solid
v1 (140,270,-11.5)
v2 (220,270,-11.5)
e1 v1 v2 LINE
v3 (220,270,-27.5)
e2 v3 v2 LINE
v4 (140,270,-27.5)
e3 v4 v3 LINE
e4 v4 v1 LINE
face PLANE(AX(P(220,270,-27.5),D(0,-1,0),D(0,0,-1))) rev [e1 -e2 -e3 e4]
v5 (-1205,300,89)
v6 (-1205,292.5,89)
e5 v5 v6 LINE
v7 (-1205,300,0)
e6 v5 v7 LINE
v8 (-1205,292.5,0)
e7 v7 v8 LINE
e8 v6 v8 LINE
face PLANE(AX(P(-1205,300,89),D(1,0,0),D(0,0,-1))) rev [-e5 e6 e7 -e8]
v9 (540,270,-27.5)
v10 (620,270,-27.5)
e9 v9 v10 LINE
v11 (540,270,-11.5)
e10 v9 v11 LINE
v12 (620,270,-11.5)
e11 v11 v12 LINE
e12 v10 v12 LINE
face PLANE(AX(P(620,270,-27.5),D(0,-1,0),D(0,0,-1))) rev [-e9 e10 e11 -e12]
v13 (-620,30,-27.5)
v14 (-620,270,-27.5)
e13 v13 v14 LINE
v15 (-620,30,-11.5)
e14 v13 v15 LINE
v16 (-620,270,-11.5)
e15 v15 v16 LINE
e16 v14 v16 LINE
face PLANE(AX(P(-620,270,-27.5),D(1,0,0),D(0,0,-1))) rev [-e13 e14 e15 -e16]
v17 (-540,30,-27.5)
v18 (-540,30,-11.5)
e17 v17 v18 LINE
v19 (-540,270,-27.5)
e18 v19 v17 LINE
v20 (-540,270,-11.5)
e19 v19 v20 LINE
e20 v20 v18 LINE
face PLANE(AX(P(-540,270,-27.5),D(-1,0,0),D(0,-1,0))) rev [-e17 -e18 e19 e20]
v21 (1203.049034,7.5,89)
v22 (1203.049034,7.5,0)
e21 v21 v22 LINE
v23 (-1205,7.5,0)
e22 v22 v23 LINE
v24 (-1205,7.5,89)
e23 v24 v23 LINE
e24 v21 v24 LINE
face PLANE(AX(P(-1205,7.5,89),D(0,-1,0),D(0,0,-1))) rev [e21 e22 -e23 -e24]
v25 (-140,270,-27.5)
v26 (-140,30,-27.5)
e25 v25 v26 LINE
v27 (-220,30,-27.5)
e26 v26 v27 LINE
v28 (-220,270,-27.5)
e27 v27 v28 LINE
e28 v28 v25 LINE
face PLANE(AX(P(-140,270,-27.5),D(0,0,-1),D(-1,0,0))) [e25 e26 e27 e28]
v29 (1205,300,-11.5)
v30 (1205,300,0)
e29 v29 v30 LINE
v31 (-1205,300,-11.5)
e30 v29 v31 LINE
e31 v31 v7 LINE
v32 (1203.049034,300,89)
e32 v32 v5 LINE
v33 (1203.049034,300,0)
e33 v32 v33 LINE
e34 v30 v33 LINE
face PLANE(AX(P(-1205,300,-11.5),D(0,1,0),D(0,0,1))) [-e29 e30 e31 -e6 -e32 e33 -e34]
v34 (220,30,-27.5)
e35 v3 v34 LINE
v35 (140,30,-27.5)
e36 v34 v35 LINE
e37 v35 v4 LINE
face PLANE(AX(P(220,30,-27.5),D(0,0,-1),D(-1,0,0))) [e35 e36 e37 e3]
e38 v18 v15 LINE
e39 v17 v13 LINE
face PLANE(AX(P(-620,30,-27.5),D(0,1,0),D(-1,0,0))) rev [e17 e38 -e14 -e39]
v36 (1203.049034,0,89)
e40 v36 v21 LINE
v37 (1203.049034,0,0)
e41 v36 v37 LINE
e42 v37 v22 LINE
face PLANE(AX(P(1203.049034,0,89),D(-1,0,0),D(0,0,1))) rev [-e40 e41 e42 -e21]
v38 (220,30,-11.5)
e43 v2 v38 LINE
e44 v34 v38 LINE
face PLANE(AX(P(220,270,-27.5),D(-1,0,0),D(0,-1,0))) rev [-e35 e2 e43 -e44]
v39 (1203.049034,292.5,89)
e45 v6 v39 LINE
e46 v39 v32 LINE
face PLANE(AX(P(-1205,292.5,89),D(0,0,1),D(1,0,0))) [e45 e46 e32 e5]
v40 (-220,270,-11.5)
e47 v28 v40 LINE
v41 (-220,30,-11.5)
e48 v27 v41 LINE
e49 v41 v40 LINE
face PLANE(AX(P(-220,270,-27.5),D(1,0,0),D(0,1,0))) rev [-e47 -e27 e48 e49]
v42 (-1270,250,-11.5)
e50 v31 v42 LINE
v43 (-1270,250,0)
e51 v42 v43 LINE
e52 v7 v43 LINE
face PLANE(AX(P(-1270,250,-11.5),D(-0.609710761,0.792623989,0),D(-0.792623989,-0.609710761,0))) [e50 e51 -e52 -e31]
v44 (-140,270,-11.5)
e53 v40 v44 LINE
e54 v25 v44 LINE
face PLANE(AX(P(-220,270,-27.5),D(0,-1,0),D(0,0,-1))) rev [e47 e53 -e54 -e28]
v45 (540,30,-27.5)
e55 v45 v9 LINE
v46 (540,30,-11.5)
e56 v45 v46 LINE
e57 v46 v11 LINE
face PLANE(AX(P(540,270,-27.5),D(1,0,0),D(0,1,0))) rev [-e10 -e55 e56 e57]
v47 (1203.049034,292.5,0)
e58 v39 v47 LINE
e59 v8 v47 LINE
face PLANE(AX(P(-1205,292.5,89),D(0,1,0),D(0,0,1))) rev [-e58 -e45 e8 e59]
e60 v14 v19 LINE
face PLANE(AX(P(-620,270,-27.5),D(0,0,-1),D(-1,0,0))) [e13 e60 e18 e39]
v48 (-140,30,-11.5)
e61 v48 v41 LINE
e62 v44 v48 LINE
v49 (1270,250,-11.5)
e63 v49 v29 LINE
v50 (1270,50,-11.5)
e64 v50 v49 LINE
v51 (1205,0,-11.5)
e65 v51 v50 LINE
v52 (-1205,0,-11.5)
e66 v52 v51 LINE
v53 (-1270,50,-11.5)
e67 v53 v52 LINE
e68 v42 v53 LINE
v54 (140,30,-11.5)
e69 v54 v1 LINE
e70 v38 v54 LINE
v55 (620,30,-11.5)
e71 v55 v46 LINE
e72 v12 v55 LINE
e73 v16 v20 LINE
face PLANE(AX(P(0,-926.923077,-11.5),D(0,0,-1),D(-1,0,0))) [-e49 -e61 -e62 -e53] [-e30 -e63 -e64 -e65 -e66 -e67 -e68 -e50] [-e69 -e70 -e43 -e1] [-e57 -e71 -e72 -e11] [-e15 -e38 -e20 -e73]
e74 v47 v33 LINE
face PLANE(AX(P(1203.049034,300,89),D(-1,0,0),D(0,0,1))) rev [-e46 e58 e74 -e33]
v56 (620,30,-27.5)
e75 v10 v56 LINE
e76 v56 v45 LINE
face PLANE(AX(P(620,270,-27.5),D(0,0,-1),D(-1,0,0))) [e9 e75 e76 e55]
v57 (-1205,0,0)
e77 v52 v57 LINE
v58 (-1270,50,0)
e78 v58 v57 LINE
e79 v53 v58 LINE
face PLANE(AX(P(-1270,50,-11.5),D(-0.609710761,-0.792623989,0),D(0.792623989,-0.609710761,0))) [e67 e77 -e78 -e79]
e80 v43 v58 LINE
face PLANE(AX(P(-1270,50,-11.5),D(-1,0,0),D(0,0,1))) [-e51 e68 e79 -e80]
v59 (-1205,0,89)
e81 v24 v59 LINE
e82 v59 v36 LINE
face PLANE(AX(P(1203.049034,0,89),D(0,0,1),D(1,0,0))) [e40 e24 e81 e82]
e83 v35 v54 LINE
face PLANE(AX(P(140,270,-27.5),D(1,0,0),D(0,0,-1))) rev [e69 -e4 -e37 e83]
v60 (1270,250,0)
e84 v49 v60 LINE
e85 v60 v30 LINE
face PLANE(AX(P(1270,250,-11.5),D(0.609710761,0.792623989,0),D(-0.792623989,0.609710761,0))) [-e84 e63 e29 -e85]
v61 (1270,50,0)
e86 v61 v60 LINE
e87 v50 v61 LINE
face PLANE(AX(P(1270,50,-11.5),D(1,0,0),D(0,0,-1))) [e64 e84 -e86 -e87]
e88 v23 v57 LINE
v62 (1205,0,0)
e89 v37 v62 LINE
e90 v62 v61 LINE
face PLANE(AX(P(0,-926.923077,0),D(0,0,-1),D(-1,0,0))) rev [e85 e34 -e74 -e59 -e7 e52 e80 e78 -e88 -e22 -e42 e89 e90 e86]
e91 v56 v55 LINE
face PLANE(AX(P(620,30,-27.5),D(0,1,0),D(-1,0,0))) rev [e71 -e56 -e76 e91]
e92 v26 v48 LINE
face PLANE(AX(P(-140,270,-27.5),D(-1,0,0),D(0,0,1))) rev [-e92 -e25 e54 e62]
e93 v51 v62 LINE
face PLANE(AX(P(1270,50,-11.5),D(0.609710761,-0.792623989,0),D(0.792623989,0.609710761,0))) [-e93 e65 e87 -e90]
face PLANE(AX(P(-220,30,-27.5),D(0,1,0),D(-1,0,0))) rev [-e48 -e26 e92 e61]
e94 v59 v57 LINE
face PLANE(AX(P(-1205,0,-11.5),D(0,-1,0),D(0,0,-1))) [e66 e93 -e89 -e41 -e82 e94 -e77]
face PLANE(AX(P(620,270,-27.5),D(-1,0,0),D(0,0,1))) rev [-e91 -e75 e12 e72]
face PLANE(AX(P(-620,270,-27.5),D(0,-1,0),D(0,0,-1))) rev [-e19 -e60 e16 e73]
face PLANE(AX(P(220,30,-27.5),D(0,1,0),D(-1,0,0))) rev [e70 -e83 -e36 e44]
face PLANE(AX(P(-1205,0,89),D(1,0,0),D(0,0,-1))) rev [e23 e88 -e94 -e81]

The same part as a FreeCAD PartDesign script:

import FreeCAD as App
import Part
import Sketcher


def add_polygon(sketch, points):
    """Adds a closed chain of lines whose ends are joined by coincident constraints."""
    first, n = sketch.GeometryCount, len(points)
    for a, b in zip(points, points[1:] + points[:1]):
        sketch.addGeometry(Part.LineSegment(App.Vector(*a, 0), App.Vector(*b, 0)), False)
    for i in range(n):
        sketch.addConstraint(Sketcher.Constraint("Coincident", first + i, 2, first + (i + 1) % n, 1))

doc = App.newDocument("Part")
body = doc.addObject("PartDesign::Body", "Body")

# Sketch on XY plane
sketch1 = doc.addObject("Sketcher::SketchObject", "Sketch")
body.addObject(sketch1)
sketch1.AttachmentSupport = (doc.XY_Plane, [""])
sketch1.MapMode = "FlatFace"
add_polygon(sketch1, [(-1205, 0), (1205, 0), (1270, 50), (1270, 250), (1205, 300), (-1205, 300), (-1270, 250), (-1270, 50)])  # lines 0-7
sketch1.addConstraint(Sketcher.Constraint("Horizontal", 0))
sketch1.addConstraint(Sketcher.Constraint("Vertical", 2))
sketch1.addConstraint(Sketcher.Constraint("Horizontal", 4))
sketch1.addConstraint(Sketcher.Constraint("Vertical", 6))
sketch1.addConstraint(Sketcher.Constraint("Symmetric", 0, 2, 7, 2, -1, 1))
sketch1.addConstraint(Sketcher.Constraint("Symmetric", 2, 2, 5, 2, -2))
sketch1.addConstraint(Sketcher.Constraint("Parallel", 1, 5))
sketch1.addConstraint(Sketcher.Constraint("Parallel", 3, 7))
sketch1.addConstraint(Sketcher.Constraint("Horizontal", 1, 2, 6, 2))
sketch1.addConstraint(Sketcher.Constraint("Vertical", 0, 2, 3, 2))
sketch1.addConstraint(Sketcher.Constraint("DistanceX", 0, 1, 0, 2, 2410.0))
sketch1.addConstraint(Sketcher.Constraint("DistanceY", 2, 1, 2, 2, 200.0))
sketch1.addConstraint(Sketcher.Constraint("DistanceX", -1, 1, 1, 2, 1270.0))
sketch1.addConstraint(Sketcher.Constraint("DistanceY", -1, 1, 1, 2, 50.0))
pad1 = doc.addObject("PartDesign::Pad", "Pad")
body.addObject(pad1)
pad1.Profile = sketch1
pad1.Length = 11.5
pad1.Reversed = True

# Sketch on XY plane
sketch2 = doc.addObject("Sketcher::SketchObject", "Sketch001")
body.addObject(sketch2)
sketch2.AttachmentSupport = (doc.XY_Plane, [""])
sketch2.MapMode = "FlatFace"
add_polygon(sketch2, [(-1205, 300), (-1205, 292.5), (1203.049034, 292.5), (1203.049034, 300)])  # lines 0-3
add_polygon(sketch2, [(-1205, 7.5), (-1205, 0), (1203.049034, 0), (1203.049034, 7.5)])  # lines 4-7
sketch2.addConstraint(Sketcher.Constraint("Vertical", 0))
sketch2.addConstraint(Sketcher.Constraint("Horizontal", 1))
sketch2.addConstraint(Sketcher.Constraint("Vertical", 2))
sketch2.addConstraint(Sketcher.Constraint("Horizontal", 3))
sketch2.addConstraint(Sketcher.Constraint("Vertical", 4))
sketch2.addConstraint(Sketcher.Constraint("Horizontal", 5))
sketch2.addConstraint(Sketcher.Constraint("Vertical", 6))
sketch2.addConstraint(Sketcher.Constraint("Horizontal", 7))
sketch2.addConstraint(Sketcher.Constraint("PointOnObject", 4, 2, -1))
sketch2.addConstraint(Sketcher.Constraint("Vertical", 3, 2, 4, 2))
sketch2.addConstraint(Sketcher.Constraint("Vertical", 2, 2, 5, 2))
sketch2.addConstraint(Sketcher.Constraint("Equal", 2, 4))
sketch2.addConstraint(Sketcher.Constraint("DistanceY", 0, 2, 0, 1, 7.5))
sketch2.addConstraint(Sketcher.Constraint("DistanceX", 0, 2, -1, 1, 1205.0))
sketch2.addConstraint(Sketcher.Constraint("DistanceY", -1, 1, 2, 2, 300.0))
sketch2.addConstraint(Sketcher.Constraint("DistanceX", 1, 1, 1, 2, 2408.049034))
pad2 = doc.addObject("PartDesign::Pad", "Pad001")
body.addObject(pad2)
pad2.Profile = sketch2
pad2.Length = 89

# Sketch on XY plane
sketch3 = doc.addObject("Sketcher::SketchObject", "Sketch002")
body.addObject(sketch3)
sketch3.AttachmentSupport = (doc.XY_Plane, [""])
sketch3.MapMode = "FlatFace"
sketch3.AttachmentOffset = App.Placement(App.Vector(0, 0, -11.5), App.Rotation())
add_polygon(sketch3, [(620, 270), (620, 30), (540, 30), (540, 270)])  # lines 0-3
add_polygon(sketch3, [(220, 270), (220, 30), (140, 30), (140, 270)])  # lines 4-7
add_polygon(sketch3, [(-140, 270), (-140, 30), (-220, 30), (-220, 270)])  # lines 8-11
add_polygon(sketch3, [(-540, 270), (-540, 30), (-620, 30), (-620, 270)])  # lines 12-15
sketch3.addConstraint(Sketcher.Constraint("Vertical", 0))
sketch3.addConstraint(Sketcher.Constraint("Horizontal", 1))
sketch3.addConstraint(Sketcher.Constraint("Vertical", 2))
sketch3.addConstraint(Sketcher.Constraint("Horizontal", 3))
sketch3.addConstraint(Sketcher.Constraint("Vertical", 4))
sketch3.addConstraint(Sketcher.Constraint("Horizontal", 5))
sketch3.addConstraint(Sketcher.Constraint("Vertical", 6))
sketch3.addConstraint(Sketcher.Constraint("Horizontal", 7))
sketch3.addConstraint(Sketcher.Constraint("Vertical", 8))
sketch3.addConstraint(Sketcher.Constraint("Horizontal", 9))
sketch3.addConstraint(Sketcher.Constraint("Vertical", 10))
sketch3.addConstraint(Sketcher.Constraint("Horizontal", 11))
sketch3.addConstraint(Sketcher.Constraint("Vertical", 12))
sketch3.addConstraint(Sketcher.Constraint("Horizontal", 13))
sketch3.addConstraint(Sketcher.Constraint("Vertical", 14))
sketch3.addConstraint(Sketcher.Constraint("Horizontal", 15))
sketch3.addConstraint(Sketcher.Constraint("Symmetric", 5, 2, 8, 2, -2))
sketch3.addConstraint(Sketcher.Constraint("Symmetric", 7, 2, 10, 2, -2))
sketch3.addConstraint(Sketcher.Constraint("Symmetric", 1, 2, 12, 2, -2))
sketch3.addConstraint(Sketcher.Constraint("Symmetric", 3, 2, 14, 2, -2))
sketch3.addConstraint(Sketcher.Constraint("Horizontal", 1, 2, 4, 2))
sketch3.addConstraint(Sketcher.Constraint("Horizontal", 3, 2, 6, 2))
sketch3.addConstraint(Sketcher.Constraint("Equal", 3, 5))
sketch3.addConstraint(Sketcher.Constraint("DistanceX", 1, 2, 1, 1, 80.0))
sketch3.addConstraint(Sketcher.Constraint("DistanceY", 0, 2, 0, 1, 240.0))
sketch3.addConstraint(Sketcher.Constraint("DistanceX", -1, 1, 0, 2, 620.0))
sketch3.addConstraint(Sketcher.Constraint("DistanceY", -1, 1, 0, 2, 30.0))
sketch3.addConstraint(Sketcher.Constraint("DistanceX", -1, 1, 4, 2, 220.0))
pad3 = doc.addObject("PartDesign::Pad", "Pad002")
body.addObject(pad3)
pad3.Profile = sketch3
pad3.Length = 16
pad3.Reversed = True

doc.recompute()
